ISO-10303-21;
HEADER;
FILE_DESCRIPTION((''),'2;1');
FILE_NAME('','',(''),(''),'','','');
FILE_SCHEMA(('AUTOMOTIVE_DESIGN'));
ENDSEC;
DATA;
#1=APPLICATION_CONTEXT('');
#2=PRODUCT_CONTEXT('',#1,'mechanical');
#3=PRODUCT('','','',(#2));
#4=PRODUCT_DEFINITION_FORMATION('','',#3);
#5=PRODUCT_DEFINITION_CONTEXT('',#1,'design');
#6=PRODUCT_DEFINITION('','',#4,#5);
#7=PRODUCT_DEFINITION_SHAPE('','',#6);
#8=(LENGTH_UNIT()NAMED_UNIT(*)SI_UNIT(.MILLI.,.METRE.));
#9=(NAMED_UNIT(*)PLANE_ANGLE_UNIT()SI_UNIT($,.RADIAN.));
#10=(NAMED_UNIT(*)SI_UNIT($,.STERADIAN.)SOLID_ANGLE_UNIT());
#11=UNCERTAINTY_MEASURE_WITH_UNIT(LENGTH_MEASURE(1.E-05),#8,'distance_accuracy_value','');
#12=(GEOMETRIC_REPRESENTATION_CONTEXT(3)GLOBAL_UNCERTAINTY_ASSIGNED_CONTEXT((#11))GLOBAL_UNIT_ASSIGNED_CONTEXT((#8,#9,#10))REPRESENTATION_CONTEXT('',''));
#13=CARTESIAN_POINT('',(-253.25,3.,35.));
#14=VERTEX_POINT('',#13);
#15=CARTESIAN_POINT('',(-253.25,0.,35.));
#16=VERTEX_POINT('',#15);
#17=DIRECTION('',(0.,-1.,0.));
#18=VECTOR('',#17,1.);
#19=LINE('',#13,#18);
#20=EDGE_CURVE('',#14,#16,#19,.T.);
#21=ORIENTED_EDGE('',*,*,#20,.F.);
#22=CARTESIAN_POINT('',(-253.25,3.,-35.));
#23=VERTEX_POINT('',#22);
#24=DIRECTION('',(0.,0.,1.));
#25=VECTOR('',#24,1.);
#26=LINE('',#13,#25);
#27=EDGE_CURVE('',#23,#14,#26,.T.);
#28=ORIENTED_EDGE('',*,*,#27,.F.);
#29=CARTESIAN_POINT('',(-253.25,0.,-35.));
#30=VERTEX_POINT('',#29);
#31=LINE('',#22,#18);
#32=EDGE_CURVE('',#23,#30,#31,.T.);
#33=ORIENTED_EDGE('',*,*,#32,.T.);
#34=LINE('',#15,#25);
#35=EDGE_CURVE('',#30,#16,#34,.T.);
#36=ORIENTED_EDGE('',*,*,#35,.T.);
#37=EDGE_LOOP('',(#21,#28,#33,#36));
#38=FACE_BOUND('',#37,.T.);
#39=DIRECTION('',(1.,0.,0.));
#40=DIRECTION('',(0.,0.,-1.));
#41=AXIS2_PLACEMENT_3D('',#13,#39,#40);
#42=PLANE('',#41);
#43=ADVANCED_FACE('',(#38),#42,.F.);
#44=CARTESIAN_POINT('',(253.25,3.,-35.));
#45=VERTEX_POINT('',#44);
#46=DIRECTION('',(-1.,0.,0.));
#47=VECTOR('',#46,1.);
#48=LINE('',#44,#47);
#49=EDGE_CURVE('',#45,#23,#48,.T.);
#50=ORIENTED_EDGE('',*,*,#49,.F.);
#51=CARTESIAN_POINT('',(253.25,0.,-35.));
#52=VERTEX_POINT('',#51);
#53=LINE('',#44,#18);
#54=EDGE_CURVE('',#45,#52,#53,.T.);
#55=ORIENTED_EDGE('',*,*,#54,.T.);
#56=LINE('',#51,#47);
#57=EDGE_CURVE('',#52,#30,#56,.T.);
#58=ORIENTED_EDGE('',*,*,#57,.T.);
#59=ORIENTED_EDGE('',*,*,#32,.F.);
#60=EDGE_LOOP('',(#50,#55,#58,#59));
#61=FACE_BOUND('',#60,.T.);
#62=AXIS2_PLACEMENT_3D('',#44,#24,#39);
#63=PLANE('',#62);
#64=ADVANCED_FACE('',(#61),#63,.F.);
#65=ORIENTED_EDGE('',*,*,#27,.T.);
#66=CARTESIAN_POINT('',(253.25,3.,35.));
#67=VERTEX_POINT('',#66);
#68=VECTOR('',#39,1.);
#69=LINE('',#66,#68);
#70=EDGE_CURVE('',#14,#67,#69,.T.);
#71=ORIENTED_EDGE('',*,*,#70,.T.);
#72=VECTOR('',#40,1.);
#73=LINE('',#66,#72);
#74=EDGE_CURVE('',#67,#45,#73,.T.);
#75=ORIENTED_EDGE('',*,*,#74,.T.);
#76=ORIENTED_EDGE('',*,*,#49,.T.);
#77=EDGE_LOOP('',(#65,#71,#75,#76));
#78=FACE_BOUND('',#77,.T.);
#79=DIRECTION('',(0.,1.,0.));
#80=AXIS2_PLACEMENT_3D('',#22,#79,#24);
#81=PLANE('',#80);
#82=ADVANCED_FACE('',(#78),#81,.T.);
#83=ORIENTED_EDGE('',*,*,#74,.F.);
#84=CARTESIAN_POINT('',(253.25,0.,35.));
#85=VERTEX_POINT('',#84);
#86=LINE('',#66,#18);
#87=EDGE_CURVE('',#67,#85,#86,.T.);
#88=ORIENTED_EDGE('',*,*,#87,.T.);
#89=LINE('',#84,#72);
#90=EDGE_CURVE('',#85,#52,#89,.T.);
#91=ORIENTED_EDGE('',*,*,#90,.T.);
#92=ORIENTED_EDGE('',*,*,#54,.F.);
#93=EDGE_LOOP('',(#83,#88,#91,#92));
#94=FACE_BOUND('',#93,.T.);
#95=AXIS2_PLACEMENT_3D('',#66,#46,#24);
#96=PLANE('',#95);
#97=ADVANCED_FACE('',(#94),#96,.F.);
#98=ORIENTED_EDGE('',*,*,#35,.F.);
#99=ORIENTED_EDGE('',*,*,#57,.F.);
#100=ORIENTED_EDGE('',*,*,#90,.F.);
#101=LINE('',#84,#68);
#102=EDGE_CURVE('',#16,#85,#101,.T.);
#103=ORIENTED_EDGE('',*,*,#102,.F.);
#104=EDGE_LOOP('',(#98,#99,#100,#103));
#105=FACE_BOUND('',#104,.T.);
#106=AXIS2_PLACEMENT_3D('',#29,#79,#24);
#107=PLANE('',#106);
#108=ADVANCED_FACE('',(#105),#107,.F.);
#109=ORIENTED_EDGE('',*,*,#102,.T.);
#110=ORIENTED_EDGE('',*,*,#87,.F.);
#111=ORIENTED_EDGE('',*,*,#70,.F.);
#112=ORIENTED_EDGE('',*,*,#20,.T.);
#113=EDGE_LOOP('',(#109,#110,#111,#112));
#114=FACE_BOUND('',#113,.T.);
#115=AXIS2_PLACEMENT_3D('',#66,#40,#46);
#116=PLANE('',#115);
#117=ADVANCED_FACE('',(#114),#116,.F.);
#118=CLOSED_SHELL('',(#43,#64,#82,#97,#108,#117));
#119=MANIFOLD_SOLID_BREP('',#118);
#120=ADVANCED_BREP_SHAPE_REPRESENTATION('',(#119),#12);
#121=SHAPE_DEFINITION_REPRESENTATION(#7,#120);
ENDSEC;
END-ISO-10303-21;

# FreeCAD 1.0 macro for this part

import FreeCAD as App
import Part
import Sketcher
Q = App.Units.Quantity

doc = App.newDocument("Part")
body = doc.addObject("PartDesign::Body", "Body")

# Sketch on XZ plane
sketch1 = body.newObject("Sketcher::SketchObject", "Sketch")
sketch1.AttachmentSupport = (doc.getObject("XZ_Plane"), [""])
sketch1.MapMode = "FlatFace"
sketch1.addGeometry([
    Part.LineSegment(App.Vector(-253, -35, 0), App.Vector(-253, 35, 0)),
    Part.LineSegment(App.Vector(-253, 35, 0), App.Vector(253, 35, 0)),
    Part.LineSegment(App.Vector(253, 35, 0), App.Vector(253, -35, 0)),
    Part.LineSegment(App.Vector(253, -35, 0), App.Vector(-253, -35, 0)),
], False)
sketch1.addConstraint([
    Sketcher.Constraint("Coincident", 0, 2, 1, 1),
    Sketcher.Constraint("Coincident", 1, 2, 2, 1),
    Sketcher.Constraint("Coincident", 2, 2, 3, 1),
    Sketcher.Constraint("Coincident", 3, 2, 0, 1),
    Sketcher.Constraint("Vertical", 0),
    Sketcher.Constraint("Horizontal", 1),
    Sketcher.Constraint("Vertical", 2),
    Sketcher.Constraint("Horizontal", 3),
    Sketcher.Constraint("Symmetric", 0, 2, 2, 2, -1, 1),
    Sketcher.Constraint("DistanceY", 0, 1, 0, 2, Q("70 mm")),
    Sketcher.Constraint("DistanceX", 1, 1, 1, 2, Q("506.5 mm")),
])
pad1 = body.newObject("PartDesign::Pad", "Pad")
pad1.Profile = sketch1
pad1.Length = 3
pad1.Reversed = True

doc.recompute()
